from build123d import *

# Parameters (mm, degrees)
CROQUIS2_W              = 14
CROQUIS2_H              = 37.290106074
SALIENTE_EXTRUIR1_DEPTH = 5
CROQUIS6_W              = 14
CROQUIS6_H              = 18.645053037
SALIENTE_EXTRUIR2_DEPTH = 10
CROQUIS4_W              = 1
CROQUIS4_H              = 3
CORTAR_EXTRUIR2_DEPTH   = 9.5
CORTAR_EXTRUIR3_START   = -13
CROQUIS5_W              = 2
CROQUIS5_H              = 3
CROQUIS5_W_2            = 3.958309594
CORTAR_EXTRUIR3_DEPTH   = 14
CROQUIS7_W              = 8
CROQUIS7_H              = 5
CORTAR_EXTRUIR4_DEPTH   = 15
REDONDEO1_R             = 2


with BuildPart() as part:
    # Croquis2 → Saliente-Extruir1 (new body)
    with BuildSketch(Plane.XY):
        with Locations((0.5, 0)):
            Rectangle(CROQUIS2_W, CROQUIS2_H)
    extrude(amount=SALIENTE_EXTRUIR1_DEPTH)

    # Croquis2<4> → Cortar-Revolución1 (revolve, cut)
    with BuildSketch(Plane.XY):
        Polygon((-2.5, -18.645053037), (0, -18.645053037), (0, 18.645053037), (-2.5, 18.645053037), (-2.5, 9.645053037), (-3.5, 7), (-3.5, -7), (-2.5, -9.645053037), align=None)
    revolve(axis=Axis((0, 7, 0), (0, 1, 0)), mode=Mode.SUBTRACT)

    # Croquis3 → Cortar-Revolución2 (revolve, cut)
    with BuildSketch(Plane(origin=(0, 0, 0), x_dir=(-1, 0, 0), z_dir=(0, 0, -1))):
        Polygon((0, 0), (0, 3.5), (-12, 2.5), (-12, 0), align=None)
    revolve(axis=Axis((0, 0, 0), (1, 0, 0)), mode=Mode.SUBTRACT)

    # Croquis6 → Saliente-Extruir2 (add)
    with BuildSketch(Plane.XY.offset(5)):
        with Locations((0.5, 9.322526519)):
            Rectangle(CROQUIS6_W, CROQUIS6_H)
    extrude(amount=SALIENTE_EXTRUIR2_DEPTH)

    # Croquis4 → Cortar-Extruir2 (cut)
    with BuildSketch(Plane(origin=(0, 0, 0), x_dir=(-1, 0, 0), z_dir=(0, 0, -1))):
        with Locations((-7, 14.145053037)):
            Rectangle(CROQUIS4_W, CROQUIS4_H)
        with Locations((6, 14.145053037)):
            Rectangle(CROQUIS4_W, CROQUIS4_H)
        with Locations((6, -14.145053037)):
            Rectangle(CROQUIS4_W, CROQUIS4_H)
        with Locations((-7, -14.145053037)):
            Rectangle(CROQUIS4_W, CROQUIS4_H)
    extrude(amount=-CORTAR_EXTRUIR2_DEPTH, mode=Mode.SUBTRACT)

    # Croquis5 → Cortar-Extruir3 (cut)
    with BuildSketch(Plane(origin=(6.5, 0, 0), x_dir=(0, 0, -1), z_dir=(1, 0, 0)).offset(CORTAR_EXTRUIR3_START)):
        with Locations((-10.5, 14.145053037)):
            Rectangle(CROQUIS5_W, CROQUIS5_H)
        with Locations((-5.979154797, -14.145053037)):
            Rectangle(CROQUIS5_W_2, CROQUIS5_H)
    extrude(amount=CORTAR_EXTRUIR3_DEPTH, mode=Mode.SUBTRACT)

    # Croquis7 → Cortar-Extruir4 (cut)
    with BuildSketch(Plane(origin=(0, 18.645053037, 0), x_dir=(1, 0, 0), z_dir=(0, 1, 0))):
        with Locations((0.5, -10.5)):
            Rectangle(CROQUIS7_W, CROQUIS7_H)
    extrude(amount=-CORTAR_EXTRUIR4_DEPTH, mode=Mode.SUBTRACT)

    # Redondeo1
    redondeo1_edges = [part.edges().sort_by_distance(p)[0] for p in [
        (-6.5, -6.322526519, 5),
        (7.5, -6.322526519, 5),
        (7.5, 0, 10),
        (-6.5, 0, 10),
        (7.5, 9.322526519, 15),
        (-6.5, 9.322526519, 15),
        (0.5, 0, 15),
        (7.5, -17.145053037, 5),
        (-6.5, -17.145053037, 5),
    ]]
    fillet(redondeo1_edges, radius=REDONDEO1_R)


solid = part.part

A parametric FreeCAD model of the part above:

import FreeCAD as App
import Part
import Sketcher

V = App.Vector


def edges_at(feature, points):
    """Names of the edges that pass closest to the given points."""
    edges = feature.Shape.Edges
    near = lambda p: min(range(len(edges)), key=lambda i: edges[i].distToShape(Part.Vertex(*p))[0])
    return sorted({f"Edge{near(p) + 1}" for p in points})

doc = App.newDocument("Part")
body = doc.addObject("PartDesign::Body", "Body")

sketch1 = body.newObject("Sketcher::SketchObject", "Sketch")
sketch1.AttachmentSupport = (doc.getObject("XY_Plane"), [""])
sketch1.MapMode = "FlatFace"
sketch1.addGeometry(Part.LineSegment(V(-6.5, 18.645053, 0), V(-6.5, -18.645053, 0)), False)
sketch1.addGeometry(Part.LineSegment(V(-6.5, -18.645053, 0), V(7.5, -18.645053, 0)), False)
sketch1.addGeometry(Part.LineSegment(V(7.5, -18.645053, 0), V(7.5, 18.645053, 0)), False)
sketch1.addGeometry(Part.LineSegment(V(7.5, 18.645053, 0), V(-6.5, 18.645053, 0)), False)
sketch1.addConstraint(Sketcher.Constraint("Coincident", 0, 2, 1, 1))
sketch1.addConstraint(Sketcher.Constraint("Coincident", 1, 2, 2, 1))
sketch1.addConstraint(Sketcher.Constraint("Coincident", 2, 2, 3, 1))
sketch1.addConstraint(Sketcher.Constraint("Coincident", 3, 2, 0, 1))
sketch1.addConstraint(Sketcher.Constraint("Vertical", 0))
sketch1.addConstraint(Sketcher.Constraint("Horizontal", 1))
sketch1.addConstraint(Sketcher.Constraint("Vertical", 2))
sketch1.addConstraint(Sketcher.Constraint("Horizontal", 3))
sketch1.addConstraint(Sketcher.Constraint("DistanceX", 1, 1, 1, 2, 14.0))
sketch1.addConstraint(Sketcher.Constraint("DistanceX", 0, 2, -1, 1, 6.5))
sketch1.addConstraint(Sketcher.Constraint("DistanceY", 0, 2, 0, 1, 37.290106))
sketch1.addConstraint(Sketcher.Constraint("DistanceY", 0, 2, -1, 1, 18.645053))
pad1 = body.newObject("PartDesign::Pad", "Pad")
pad1.Profile = sketch1
pad1.Length = 5

sketch2 = body.newObject("Sketcher::SketchObject", "Sketch001")
sketch2.AttachmentSupport = (doc.getObject("XY_Plane"), [""])
sketch2.MapMode = "FlatFace"
sketch2.addGeometry(Part.LineSegment(V(-2.5, -18.645053, 0), V(0, -18.645053, 0)), False)
sketch2.addGeometry(Part.LineSegment(V(0, -18.645053, 0), V(0, 18.645053, 0)), False)
sketch2.addGeometry(Part.LineSegment(V(0, 18.645053, 0), V(-2.5, 18.645053, 0)), False)
sketch2.addGeometry(Part.LineSegment(V(-2.5, 18.645053, 0), V(-2.5, 9.645053, 0)), False)
sketch2.addGeometry(Part.LineSegment(V(-2.5, 9.645053, 0), V(-3.5, 7, 0)), False)
sketch2.addGeometry(Part.LineSegment(V(-3.5, 7, 0), V(-3.5, -7, 0)), False)
sketch2.addGeometry(Part.LineSegment(V(-3.5, -7, 0), V(-2.5, -9.645053, 0)), False)
sketch2.addGeometry(Part.LineSegment(V(-2.5, -9.645053, 0), V(-2.5, -18.645053, 0)), False)
sketch2.addConstraint(Sketcher.Constraint("Coincident", 0, 2, 1, 1))
sketch2.addConstraint(Sketcher.Constraint("Coincident", 1, 2, 2, 1))
sketch2.addConstraint(Sketcher.Constraint("Coincident", 2, 2, 3, 1))
sketch2.addConstraint(Sketcher.Constraint("Coincident", 3, 2, 4, 1))
sketch2.addConstraint(Sketcher.Constraint("Coincident", 4, 2, 5, 1))
sketch2.addConstraint(Sketcher.Constraint("Coincident", 5, 2, 6, 1))
sketch2.addConstraint(Sketcher.Constraint("Coincident", 6, 2, 7, 1))
sketch2.addConstraint(Sketcher.Constraint("Coincident", 7, 2, 0, 1))
sketch2.addConstraint(Sketcher.Constraint("Horizontal", 0))
sketch2.addConstraint(Sketcher.Constraint("Vertical", 1))
sketch2.addConstraint(Sketcher.Constraint("Horizontal", 2))
sketch2.addConstraint(Sketcher.Constraint("Vertical", 3))
sketch2.addConstraint(Sketcher.Constraint("Vertical", 5))
sketch2.addConstraint(Sketcher.Constraint("Vertical", 7))
sketch2.addConstraint(Sketcher.Constraint("Symmetric", 0, 2, 1, 2, -1, 1))
sketch2.addConstraint(Sketcher.Constraint("Symmetric", 3, 2, 6, 2, -1))
sketch2.addConstraint(Sketcher.Constraint("Equal", 4, 6))
sketch2.addConstraint(Sketcher.Constraint("DistanceY", 3, 2, 3, 1, 9.0))
sketch2.addConstraint(Sketcher.Constraint("DistanceY", 5, 2, 5, 1, 14.0))
sketch2.addConstraint(Sketcher.Constraint("DistanceX", 0, 1, 0, 2, 2.5))
sketch2.addConstraint(Sketcher.Constraint("DistanceX", 4, 2, 3, 2, 1.0))
sketch2.addConstraint(Sketcher.Constraint("DistanceY", 1, 1, 1, 2, 37.290106))
groove = body.newObject("PartDesign::Groove", "Groove")
groove.Profile = sketch2
groove.ReferenceAxis = (sketch2, ["V_Axis"])
groove.Angle = 360

sketch3 = body.newObject("Sketcher::SketchObject", "Sketch002")
sketch3.AttachmentSupport = (doc.getObject("XY_Plane"), [""])
sketch3.MapMode = "FlatFace"
sketch3.addGeometry(Part.LineSegment(V(0, 0, 0), V(0, 3.5, 0)), False)
sketch3.addGeometry(Part.LineSegment(V(0, 3.5, 0), V(12, 2.5, 0)), False)
sketch3.addGeometry(Part.LineSegment(V(12, 2.5, 0), V(12, 0, 0)), False)
sketch3.addGeometry(Part.LineSegment(V(12, 0, 0), V(0, 0, 0)), False)
sketch3.addConstraint(Sketcher.Constraint("Coincident", 0, 2, 1, 1))
sketch3.addConstraint(Sketcher.Constraint("Coincident", 1, 2, 2, 1))
sketch3.addConstraint(Sketcher.Constraint("Coincident", 2, 2, 3, 1))
sketch3.addConstraint(Sketcher.Constraint("Coincident", 3, 2, 0, 1))
sketch3.addConstraint(Sketcher.Constraint("Vertical", 0))
sketch3.addConstraint(Sketcher.Constraint("Vertical", 2))
sketch3.addConstraint(Sketcher.Constraint("Horizontal", 3))
sketch3.addConstraint(Sketcher.Constraint("Coincident", 3, 2, -1, 1))
sketch3.addConstraint(Sketcher.Constraint("DistanceX", 3, 2, 3, 1, 12.0))
sketch3.addConstraint(Sketcher.Constraint("DistanceY", 0, 1, 0, 2, 3.5))
sketch3.addConstraint(Sketcher.Constraint("DistanceY", 2, 2, 2, 1, 2.5))
groove2 = body.newObject("PartDesign::Groove", "Groove001")
groove2.Profile = sketch3
groove2.ReferenceAxis = (sketch3, ["H_Axis"])
groove2.Angle = 360

sketch4 = body.newObject("Sketcher::SketchObject", "Sketch003")
sketch4.AttachmentSupport = (doc.getObject("XY_Plane"), [""])
sketch4.MapMode = "FlatFace"
sketch4.AttachmentOffset = App.Placement(V(0, 0, 5), App.Rotation())
sketch4.addGeometry(Part.LineSegment(V(-6.5, 18.645053, 0), V(-6.5, 0, 0)), False)
sketch4.addGeometry(Part.LineSegment(V(-6.5, 0, 0), V(7.5, 0, 0)), False)
sketch4.addGeometry(Part.LineSegment(V(7.5, 0, 0), V(7.5, 18.645053, 0)), False)
sketch4.addGeometry(Part.LineSegment(V(7.5, 18.645053, 0), V(-6.5, 18.645053, 0)), False)
sketch4.addConstraint(Sketcher.Constraint("Coincident", 0, 2, 1, 1))
sketch4.addConstraint(Sketcher.Constraint("Coincident", 1, 2, 2, 1))
sketch4.addConstraint(Sketcher.Constraint("Coincident", 2, 2, 3, 1))
sketch4.addConstraint(Sketcher.Constraint("Coincident", 3, 2, 0, 1))
sketch4.addConstraint(Sketcher.Constraint("Vertical", 0))
sketch4.addConstraint(Sketcher.Constraint("Horizontal", 1))
sketch4.addConstraint(Sketcher.Constraint("Vertical", 2))
sketch4.addConstraint(Sketcher.Constraint("Horizontal", 3))
sketch4.addConstraint(Sketcher.Constraint("PointOnObject", 0, 2, -1))
sketch4.addConstraint(Sketcher.Constraint("DistanceX", 1, 1, 1, 2, 14.0))
sketch4.addConstraint(Sketcher.Constraint("DistanceX", 0, 2, -1, 1, 6.5))
sketch4.addConstraint(Sketcher.Constraint("DistanceY", 0, 2, 0, 1, 18.645053))
pad2 = body.newObject("PartDesign::Pad", "Pad001")
pad2.Profile = sketch4
pad2.Length = 10

sketch5 = body.newObject("Sketcher::SketchObject", "Sketch004")
sketch5.AttachmentSupport = (doc.getObject("XY_Plane"), [""])
sketch5.MapMode = "FlatFace"
sketch5.addGeometry(Part.LineSegment(V(7.5, 15.645053, 0), V(7.5, 12.645053, 0)), False)
sketch5.addGeometry(Part.LineSegment(V(7.5, 12.645053, 0), V(6.5, 12.645053, 0)), False)
sketch5.addGeometry(Part.LineSegment(V(6.5, 12.645053, 0), V(6.5, 15.645053, 0)), False)
sketch5.addGeometry(Part.LineSegment(V(6.5, 15.645053, 0), V(7.5, 15.645053, 0)), False)
sketch5.addGeometry(Part.LineSegment(V(-5.5, 15.645053, 0), V(-5.5, 12.645053, 0)), False)
sketch5.addGeometry(Part.LineSegment(V(-5.5, 12.645053, 0), V(-6.5, 12.645053, 0)), False)
sketch5.addGeometry(Part.LineSegment(V(-6.5, 12.645053, 0), V(-6.5, 15.645053, 0)), False)
sketch5.addGeometry(Part.LineSegment(V(-6.5, 15.645053, 0), V(-5.5, 15.645053, 0)), False)
sketch5.addGeometry(Part.LineSegment(V(-5.5, -12.645053, 0), V(-5.5, -15.645053, 0)), False)
sketch5.addGeometry(Part.LineSegment(V(-5.5, -15.645053, 0), V(-6.5, -15.645053, 0)), False)
sketch5.addGeometry(Part.LineSegment(V(-6.5, -15.645053, 0), V(-6.5, -12.645053, 0)), False)
sketch5.addGeometry(Part.LineSegment(V(-6.5, -12.645053, 0), V(-5.5, -12.645053, 0)), False)
sketch5.addGeometry(Part.LineSegment(V(7.5, -12.645053, 0), V(7.5, -15.645053, 0)), False)
sketch5.addGeometry(Part.LineSegment(V(7.5, -15.645053, 0), V(6.5, -15.645053, 0)), False)
sketch5.addGeometry(Part.LineSegment(V(6.5, -15.645053, 0), V(6.5, -12.645053, 0)), False)
sketch5.addGeometry(Part.LineSegment(V(6.5, -12.645053, 0), V(7.5, -12.645053, 0)), False)
sketch5.addConstraint(Sketcher.Constraint("Coincident", 0, 2, 1, 1))
sketch5.addConstraint(Sketcher.Constraint("Coincident", 1, 2, 2, 1))
sketch5.addConstraint(Sketcher.Constraint("Coincident", 2, 2, 3, 1))
sketch5.addConstraint(Sketcher.Constraint("Coincident", 3, 2, 0, 1))
sketch5.addConstraint(Sketcher.Constraint("Coincident", 4, 2, 5, 1))
sketch5.addConstraint(Sketcher.Constraint("Coincident", 5, 2, 6, 1))
sketch5.addConstraint(Sketcher.Constraint("Coincident", 6, 2, 7, 1))
sketch5.addConstraint(Sketcher.Constraint("Coincident", 7, 2, 4, 1))
sketch5.addConstraint(Sketcher.Constraint("Coincident", 8, 2, 9, 1))
sketch5.addConstraint(Sketcher.Constraint("Coincident", 9, 2, 10, 1))
sketch5.addConstraint(Sketcher.Constraint("Coincident", 10, 2, 11, 1))
sketch5.addConstraint(Sketcher.Constraint("Coincident", 11, 2, 8, 1))
sketch5.addConstraint(Sketcher.Constraint("Coincident", 12, 2, 13, 1))
sketch5.addConstraint(Sketcher.Constraint("Coincident", 13, 2, 14, 1))
sketch5.addConstraint(Sketcher.Constraint("Coincident", 14, 2, 15, 1))
sketch5.addConstraint(Sketcher.Constraint("Coincident", 15, 2, 12, 1))
sketch5.addConstraint(Sketcher.Constraint("Vertical", 0))
sketch5.addConstraint(Sketcher.Constraint("Horizontal", 1))
sketch5.addConstraint(Sketcher.Constraint("Vertical", 2))
sketch5.addConstraint(Sketcher.Constraint("Horizontal", 3))
sketch5.addConstraint(Sketcher.Constraint("Vertical", 4))
sketch5.addConstraint(Sketcher.Constraint("Horizontal", 5))
sketch5.addConstraint(Sketcher.Constraint("Vertical", 6))
sketch5.addConstraint(Sketcher.Constraint("Horizontal", 7))
sketch5.addConstraint(Sketcher.Constraint("Vertical", 8))
sketch5.addConstraint(Sketcher.Constraint("Horizontal", 9))
sketch5.addConstraint(Sketcher.Constraint("Vertical", 10))
sketch5.addConstraint(Sketcher.Constraint("Horizontal", 11))
sketch5.addConstraint(Sketcher.Constraint("Vertical", 12))
sketch5.addConstraint(Sketcher.Constraint("Horizontal", 13))
sketch5.addConstraint(Sketcher.Constraint("Vertical", 14))
sketch5.addConstraint(Sketcher.Constraint("Horizontal", 15))
sketch5.addConstraint(Sketcher.Constraint("Symmetric", 2, 2, 9, 2, -1, 1))
sketch5.addConstraint(Sketcher.Constraint("Symmetric", 6, 2, 13, 2, -1, 1))
sketch5.addConstraint(Sketcher.Constraint("Symmetric", 1, 2, 5, 2, -2))
sketch5.addConstraint(Sketcher.Constraint("Symmetric", 7, 2, 8, 2, -1))
sketch5.addConstraint(Sketcher.Constraint("Symmetric", 0, 2, 15, 2, -1))
sketch5.addConstraint(Sketcher.Constraint("Horizontal", 11, 2, 14, 2))
sketch5.addConstraint(Sketcher.Constraint("Equal", 3, 5))
sketch5.addConstraint(Sketcher.Constraint("DistanceX", 1, 2, 1, 1, 1.0))
sketch5.addConstraint(Sketcher.Constraint("DistanceY", 0, 2, 0, 1, 3.0))
sketch5.addConstraint(Sketcher.Constraint("DistanceX", 4, 2, 1, 2, 12.0))
sketch5.addConstraint(Sketcher.Constraint("DistanceY", -1, 1, 0, 2, 12.645053))
pocket1 = body.newObject("PartDesign::Pocket", "Pocket")
pocket1.Profile = sketch5
pocket1.Length = 9.5
pocket1.Reversed = True

sketch6 = body.newObject("Sketcher::SketchObject", "Sketch005")
sketch6.AttachmentSupport = (doc.getObject("YZ_Plane"), [""])
sketch6.MapMode = "FlatFace"
sketch6.AttachmentOffset = App.Placement(V(0, 0, -6.5), App.Rotation())
sketch6.addGeometry(Part.LineSegment(V(15.645053, 11.5, 0), V(12.645053, 11.5, 0)), False)
sketch6.addGeometry(Part.LineSegment(V(12.645053, 11.5, 0), V(12.645053, 9.5, 0)), False)
sketch6.addGeometry(Part.LineSegment(V(12.645053, 9.5, 0), V(15.645053, 9.5, 0)), False)
sketch6.addGeometry(Part.LineSegment(V(15.645053, 9.5, 0), V(15.645053, 11.5, 0)), False)
sketch6.addGeometry(Part.LineSegment(V(-12.645053, 7.95831, 0), V(-15.645053, 7.95831, 0)), False)
sketch6.addGeometry(Part.LineSegment(V(-15.645053, 7.95831, 0), V(-15.645053, 4, 0)), False)
sketch6.addGeometry(Part.LineSegment(V(-15.645053, 4, 0), V(-12.645053, 4, 0)), False)
sketch6.addGeometry(Part.LineSegment(V(-12.645053, 4, 0), V(-12.645053, 7.95831, 0)), False)
sketch6.addConstraint(Sketcher.Constraint("Coincident", 0, 2, 1, 1))
sketch6.addConstraint(Sketcher.Constraint("Coincident", 1, 2, 2, 1))
sketch6.addConstraint(Sketcher.Constraint("Coincident", 2, 2, 3, 1))
sketch6.addConstraint(Sketcher.Constraint("Coincident", 3, 2, 0, 1))
sketch6.addConstraint(Sketcher.Constraint("Coincident", 4, 2, 5, 1))
sketch6.addConstraint(Sketcher.Constraint("Coincident", 5, 2, 6, 1))
sketch6.addConstraint(Sketcher.Constraint("Coincident", 6, 2, 7, 1))
sketch6.addConstraint(Sketcher.Constraint("Coincident", 7, 2, 4, 1))
sketch6.addConstraint(Sketcher.Constraint("Horizontal", 0))
sketch6.addConstraint(Sketcher.Constraint("Vertical", 1))
sketch6.addConstraint(Sketcher.Constraint("Horizontal", 2))
sketch6.addConstraint(Sketcher.Constraint("Vertical", 3))
sketch6.addConstraint(Sketcher.Constraint("Horizontal", 4))
sketch6.addConstraint(Sketcher.Constraint("Vertical", 5))
sketch6.addConstraint(Sketcher.Constraint("Horizontal", 6))
sketch6.addConstraint(Sketcher.Constraint("Vertical", 7))
sketch6.addConstraint(Sketcher.Constraint("Equal", 2, 4))
sketch6.addConstraint(Sketcher.Constraint("DistanceX", 0, 2, 0, 1, 3.0))
sketch6.addConstraint(Sketcher.Constraint("DistanceY", 1, 2, 1, 1, 2.0))
sketch6.addConstraint(Sketcher.Constraint("DistanceY", -1, 1, 5, 2, 4.0))
sketch6.addConstraint(Sketcher.Constraint("DistanceY", -1, 1, 0, 2, 11.5))
sketch6.addConstraint(Sketcher.Constraint("DistanceY", 5, 2, 5, 1, 3.95831))
sketch6.addConstraint(Sketcher.Constraint("DistanceX", -1, 1, 0, 2, 12.645053))
sketch6.addConstraint(Sketcher.Constraint("DistanceX", 4, 2, -1, 1, 15.645053))
pocket2 = body.newObject("PartDesign::Pocket", "Pocket001")
pocket2.Profile = sketch6
pocket2.Length = 14
pocket2.Reversed = True

sketch7 = body.newObject("Sketcher::SketchObject", "Sketch006")
sketch7.AttachmentSupport = (doc.getObject("XZ_Plane"), [""])
sketch7.MapMode = "FlatFace"
sketch7.AttachmentOffset = App.Placement(V(0, 0, -18.645053), App.Rotation())
sketch7.addGeometry(Part.LineSegment(V(-3.5, 8, 0), V(-3.5, 13, 0)), False)
sketch7.addGeometry(Part.LineSegment(V(-3.5, 13, 0), V(4.5, 13, 0)), False)
sketch7.addGeometry(Part.LineSegment(V(4.5, 13, 0), V(4.5, 8, 0)), False)
sketch7.addGeometry(Part.LineSegment(V(4.5, 8, 0), V(-3.5, 8, 0)), False)
sketch7.addConstraint(Sketcher.Constraint("Coincident", 0, 2, 1, 1))
sketch7.addConstraint(Sketcher.Constraint("Coincident", 1, 2, 2, 1))
sketch7.addConstraint(Sketcher.Constraint("Coincident", 2, 2, 3, 1))
sketch7.addConstraint(Sketcher.Constraint("Coincident", 3, 2, 0, 1))
sketch7.addConstraint(Sketcher.Constraint("Vertical", 0))
sketch7.addConstraint(Sketcher.Constraint("Horizontal", 1))
sketch7.addConstraint(Sketcher.Constraint("Vertical", 2))
sketch7.addConstraint(Sketcher.Constraint("Horizontal", 3))
sketch7.addConstraint(Sketcher.Constraint("DistanceX", 1, 1, 1, 2, 8.0))
sketch7.addConstraint(Sketcher.Constraint("DistanceY", 0, 1, 0, 2, 5.0))
sketch7.addConstraint(Sketcher.Constraint("DistanceY", -1, 1, 0, 2, 13.0))
sketch7.addConstraint(Sketcher.Constraint("DistanceX", 0, 2, -1, 1, 3.5))
pocket3 = body.newObject("PartDesign::Pocket", "Pocket002")
pocket3.Profile = sketch7
pocket3.Length = 15
pocket3.Reversed = True
doc.recompute()

fillet = body.newObject("PartDesign::Fillet", "Fillet")
fillet.Base = (pocket3, edges_at(pocket3, [
    (-6.5, -6.323, 5),
    (7.5, -6.323, 5),
    (7.5, 0, 10),
    (-6.5, 0, 10),
    (7.5, 9.323, 15),
    (-6.5, 9.323, 15),
    (0.5, 0, 15),
    (7.5, -17.145, 5),
    (-6.5, -17.145, 5),
]))
fillet.Radius = 2

doc.recompute()
